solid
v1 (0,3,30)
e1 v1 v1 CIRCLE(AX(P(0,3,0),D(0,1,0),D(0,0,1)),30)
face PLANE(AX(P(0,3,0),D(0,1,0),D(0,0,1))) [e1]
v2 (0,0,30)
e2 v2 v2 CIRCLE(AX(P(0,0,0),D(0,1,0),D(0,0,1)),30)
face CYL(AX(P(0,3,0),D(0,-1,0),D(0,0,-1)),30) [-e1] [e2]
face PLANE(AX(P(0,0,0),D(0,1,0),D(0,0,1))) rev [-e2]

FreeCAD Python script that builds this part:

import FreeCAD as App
import Part
import Sketcher
from FreeCAD import Vector
Q = App.Units.Quantity

doc = App.newDocument("Part")
params = doc.addObject("Spreadsheet::Sheet", "Params")
for row, (alias, value) in enumerate([
    ("sketch1_diameter", "60 mm"),
    ("pad1_length", "3 mm"),
], start=1):
    params.set(f"A{row}", alias)
    params.set(f"B{row}", "=" + value)
    params.setAlias(f"B{row}", alias)

body = doc.addObject("PartDesign::Body", "Body")

sketch1 = body.newObject("Sketcher::SketchObject", "Sketch")
sketch1.AttachmentSupport = (doc.getObject("XZ_Plane"), [""])
sketch1.MapMode = "FlatFace"
sketch1.addGeometry(Part.Circle(Vector(0, 0, 0), Vector(0, 0, 1), 30), False)
sketch1.addConstraint([
    Sketcher.Constraint("Coincident", 0, 3, -1, 1),
    Sketcher.Constraint("Diameter", 0, Q("60 mm")),
])
sketch1.setExpression("Constraints[1]", "Params.sketch1_diameter")
pad1 = body.newObject("PartDesign::Pad", "Pad")
pad1.Profile = sketch1
pad1.setExpression("Length", "Params.pad1_length")
pad1.Reversed = True

doc.recompute()
